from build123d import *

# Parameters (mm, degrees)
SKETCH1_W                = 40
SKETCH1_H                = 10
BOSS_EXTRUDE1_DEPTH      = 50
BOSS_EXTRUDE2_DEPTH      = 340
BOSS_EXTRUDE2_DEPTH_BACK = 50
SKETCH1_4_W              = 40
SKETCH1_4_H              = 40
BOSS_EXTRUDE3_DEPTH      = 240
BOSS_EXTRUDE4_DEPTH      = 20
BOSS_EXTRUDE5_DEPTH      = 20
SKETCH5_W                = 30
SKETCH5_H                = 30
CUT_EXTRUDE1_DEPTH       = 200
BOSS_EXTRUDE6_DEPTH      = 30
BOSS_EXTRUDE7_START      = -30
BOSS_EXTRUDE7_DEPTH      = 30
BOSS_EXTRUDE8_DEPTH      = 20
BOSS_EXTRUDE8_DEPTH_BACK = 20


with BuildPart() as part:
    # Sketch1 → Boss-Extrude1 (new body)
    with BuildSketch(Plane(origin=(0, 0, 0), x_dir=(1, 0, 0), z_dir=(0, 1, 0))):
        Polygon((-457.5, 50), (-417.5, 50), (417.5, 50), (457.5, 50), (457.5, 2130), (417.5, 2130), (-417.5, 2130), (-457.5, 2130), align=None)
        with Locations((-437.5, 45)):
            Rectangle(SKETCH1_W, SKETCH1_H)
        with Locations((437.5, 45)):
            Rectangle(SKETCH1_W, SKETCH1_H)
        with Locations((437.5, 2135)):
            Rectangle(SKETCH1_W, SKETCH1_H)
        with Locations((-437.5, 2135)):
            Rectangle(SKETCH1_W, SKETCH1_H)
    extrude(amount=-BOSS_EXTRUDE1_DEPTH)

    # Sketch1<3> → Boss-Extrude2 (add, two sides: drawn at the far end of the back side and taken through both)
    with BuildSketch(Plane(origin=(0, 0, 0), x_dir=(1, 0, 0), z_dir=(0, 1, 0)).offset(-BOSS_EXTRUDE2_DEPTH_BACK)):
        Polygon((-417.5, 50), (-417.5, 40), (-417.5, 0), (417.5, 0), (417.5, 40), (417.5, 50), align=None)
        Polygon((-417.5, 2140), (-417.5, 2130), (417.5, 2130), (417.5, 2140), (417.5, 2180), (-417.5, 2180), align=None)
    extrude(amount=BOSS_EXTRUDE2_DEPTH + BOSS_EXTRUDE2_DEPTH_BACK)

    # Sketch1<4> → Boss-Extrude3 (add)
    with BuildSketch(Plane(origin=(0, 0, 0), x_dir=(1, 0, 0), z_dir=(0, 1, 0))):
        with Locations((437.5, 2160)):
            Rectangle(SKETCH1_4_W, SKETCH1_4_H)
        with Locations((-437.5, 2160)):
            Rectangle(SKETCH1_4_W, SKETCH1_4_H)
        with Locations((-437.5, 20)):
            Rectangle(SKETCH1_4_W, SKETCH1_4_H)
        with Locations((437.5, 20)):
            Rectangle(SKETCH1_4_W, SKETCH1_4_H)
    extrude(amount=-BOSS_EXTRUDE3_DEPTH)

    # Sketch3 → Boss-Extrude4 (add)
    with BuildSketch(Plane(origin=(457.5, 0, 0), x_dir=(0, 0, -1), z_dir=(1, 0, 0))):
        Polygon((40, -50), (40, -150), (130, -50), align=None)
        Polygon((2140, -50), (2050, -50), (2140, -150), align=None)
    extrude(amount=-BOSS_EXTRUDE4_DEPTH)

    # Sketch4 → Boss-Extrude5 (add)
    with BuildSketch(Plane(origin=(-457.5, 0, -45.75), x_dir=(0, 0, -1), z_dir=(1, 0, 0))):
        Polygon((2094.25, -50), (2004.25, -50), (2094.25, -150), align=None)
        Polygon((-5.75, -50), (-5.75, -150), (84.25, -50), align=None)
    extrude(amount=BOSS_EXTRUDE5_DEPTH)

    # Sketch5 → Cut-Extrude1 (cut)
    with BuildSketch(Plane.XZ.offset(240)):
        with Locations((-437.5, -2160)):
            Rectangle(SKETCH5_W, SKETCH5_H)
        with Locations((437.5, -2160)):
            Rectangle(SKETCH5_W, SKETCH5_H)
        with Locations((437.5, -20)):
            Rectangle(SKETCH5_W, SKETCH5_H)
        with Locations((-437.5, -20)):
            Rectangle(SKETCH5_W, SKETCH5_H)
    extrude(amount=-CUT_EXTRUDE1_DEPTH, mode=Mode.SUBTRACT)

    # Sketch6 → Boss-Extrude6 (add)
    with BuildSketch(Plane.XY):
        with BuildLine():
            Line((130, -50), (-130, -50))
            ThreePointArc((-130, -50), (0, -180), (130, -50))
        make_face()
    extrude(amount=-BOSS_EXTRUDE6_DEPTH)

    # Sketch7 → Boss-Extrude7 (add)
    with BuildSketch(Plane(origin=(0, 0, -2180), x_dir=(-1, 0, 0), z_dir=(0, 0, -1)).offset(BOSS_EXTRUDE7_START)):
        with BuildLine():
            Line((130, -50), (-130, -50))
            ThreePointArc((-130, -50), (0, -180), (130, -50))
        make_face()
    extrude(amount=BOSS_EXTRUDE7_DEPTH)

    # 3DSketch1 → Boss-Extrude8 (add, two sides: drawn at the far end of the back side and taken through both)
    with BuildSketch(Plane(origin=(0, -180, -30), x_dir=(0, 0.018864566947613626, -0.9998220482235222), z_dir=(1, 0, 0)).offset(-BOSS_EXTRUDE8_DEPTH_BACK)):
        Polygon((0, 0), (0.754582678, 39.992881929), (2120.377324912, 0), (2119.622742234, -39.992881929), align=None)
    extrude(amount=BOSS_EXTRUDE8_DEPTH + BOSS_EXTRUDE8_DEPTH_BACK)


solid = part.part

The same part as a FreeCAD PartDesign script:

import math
import FreeCAD as App
import Part
import Sketcher
from FreeCAD import Vector


def add_polygon(sketch, points):
    """Adds a closed chain of lines whose ends are joined by coincident constraints."""
    first, n = sketch.GeometryCount, len(points)
    for a, b in zip(points, points[1:] + points[:1]):
        sketch.addGeometry(Part.LineSegment(App.Vector(*a, 0), App.Vector(*b, 0)), False)
    for i in range(n):
        sketch.addConstraint(Sketcher.Constraint("Coincident", first + i, 2, first + (i + 1) % n, 1))

doc = App.newDocument("Part")
params = doc.addObject("Spreadsheet::Sheet", "Params")
for row, (alias, value) in enumerate([
    ("sketch1_width", "835 mm"),
    ("sketch1_width2", "40 mm"),
    ("sketch1_height", "10 mm"),
    ("sketch1_height2", "2100 mm"),
    ("pad1_length", "50 mm"),
    ("sketch2_width", "835 mm"),
    ("sketch2_height", "50 mm"),
    ("pad2_length", "340 mm"),
    ("pad2_length2", "50 mm"),
    ("sketch3_width", "40 mm"),
    ("pad3_length", "240 mm"),
    ("sketch4_width", "100 mm"),
    ("sketch4_height", "90 mm"),
    ("pad4_length", "20 mm"),
    ("sketch5_width", "100 mm"),
    ("sketch5_height", "90 mm"),
    ("pad5_length", "20 mm"),
    ("sketch6_width", "30 mm"),
    ("pocket1_length", "200 mm"),
    ("sketch7_radius", "130 mm"),
    ("pad6_length", "30 mm"),
    ("sketch8_radius", "130 mm"),
    ("pad7_length", "30 mm"),
    ("sketch9_width", "40 mm"),
    ("sketch9_height", "2120 mm"),
    ("pad8_length", "20 mm"),
    ("pad8_length2", "20 mm"),
], start=1):
    params.set(f"A{row}", alias)
    params.set(f"B{row}", "=" + value)
    params.setAlias(f"B{row}", alias)

body = doc.addObject("PartDesign::Body", "Body")

# Sketch on XZ plane
sketch1 = doc.addObject("Sketcher::SketchObject", "Sketch")
body.addObject(sketch1)
sketch1.AttachmentSupport = (doc.XZ_Plane, [""])
sketch1.MapMode = "FlatFace"
add_polygon(sketch1, [(-418, -50), (418, -50), (418, -40), (458, -40), (458, -2140), (418, -2140), (418, -2130), (-418, -2130), (-418, -2140), (-458, -2140), (-458, -40), (-418, -40)])  # lines 0-11
sketch1.addConstraint(Sketcher.Constraint("Horizontal", 0))
sketch1.addConstraint(Sketcher.Constraint("Vertical", 1))
sketch1.addConstraint(Sketcher.Constraint("Horizontal", 2))
sketch1.addConstraint(Sketcher.Constraint("Vertical", 3))
sketch1.addConstraint(Sketcher.Constraint("Horizontal", 4))
sketch1.addConstraint(Sketcher.Constraint("Vertical", 5))
sketch1.addConstraint(Sketcher.Constraint("Horizontal", 6))
sketch1.addConstraint(Sketcher.Constraint("Vertical", 7))
sketch1.addConstraint(Sketcher.Constraint("Horizontal", 8))
sketch1.addConstraint(Sketcher.Constraint("Vertical", 9))
sketch1.addConstraint(Sketcher.Constraint("Horizontal", 10))
sketch1.addConstraint(Sketcher.Constraint("Vertical", 11))
sketch1.addConstraint(Sketcher.Constraint("Symmetric", 4, 2, 7, 2, -2))
sketch1.addConstraint(Sketcher.Constraint("Symmetric", 2, 2, 9, 2, -2))
sketch1.addConstraint(Sketcher.Constraint("Vertical", 1, 2, 4, 2))
sketch1.addConstraint(Sketcher.Constraint("Vertical", 7, 2, 10, 2))
sketch1.addConstraint(Sketcher.Constraint("Equal", 1, 5))
sketch1.addConstraint(Sketcher.Constraint("DistanceX", 0, 1, 0, 2, 835.0))
sketch1.addConstraint(Sketcher.Constraint("DistanceX", 2, 1, 2, 2, 40.0))
sketch1.addConstraint(Sketcher.Constraint("DistanceY", 1, 1, 1, 2, 10.0))
sketch1.addConstraint(Sketcher.Constraint("DistanceY", 3, 2, 3, 1, 2100.0))
sketch1.addConstraint(Sketcher.Constraint("DistanceY", 0, 2, -1, 1, 50.0))
sketch1.setExpression("Constraints[29]", "Params.sketch1_width")
sketch1.setExpression("Constraints[30]", "Params.sketch1_width2")
sketch1.setExpression("Constraints[31]", "Params.sketch1_height")
sketch1.setExpression("Constraints[32]", "Params.sketch1_height2")
pad1 = doc.addObject("PartDesign::Pad", "Pad")
body.addObject(pad1)
pad1.Profile = sketch1
pad1.setExpression("Length", "Params.pad1_length")

# Sketch on XZ plane
sketch2 = doc.addObject("Sketcher::SketchObject", "Sketch001")
body.addObject(sketch2)
sketch2.AttachmentSupport = (doc.XZ_Plane, [""])
sketch2.MapMode = "FlatFace"
add_polygon(sketch2, [(-418, -50), (-418, 0), (418, 0), (418, -50)])  # lines 0-3
add_polygon(sketch2, [(-418, -2130), (418, -2130), (418, -2180), (-418, -2180)])  # lines 4-7
sketch2.addConstraint(Sketcher.Constraint("Vertical", 0))
sketch2.addConstraint(Sketcher.Constraint("Horizontal", 1))
sketch2.addConstraint(Sketcher.Constraint("Vertical", 2))
sketch2.addConstraint(Sketcher.Constraint("Horizontal", 3))
sketch2.addConstraint(Sketcher.Constraint("Horizontal", 4))
sketch2.addConstraint(Sketcher.Constraint("Vertical", 5))
sketch2.addConstraint(Sketcher.Constraint("Horizontal", 6))
sketch2.addConstraint(Sketcher.Constraint("Vertical", 7))
sketch2.addConstraint(Sketcher.Constraint("Symmetric", 0, 2, 1, 2, -1, 1))
sketch2.addConstraint(Sketcher.Constraint("Vertical", 2, 2, 4, 2))
sketch2.addConstraint(Sketcher.Constraint("Vertical", 3, 2, 6, 2))
sketch2.addConstraint(Sketcher.Constraint("Equal", 2, 5))
sketch2.addConstraint(Sketcher.Constraint("DistanceX", 1, 1, 1, 2, 835.0))
sketch2.addConstraint(Sketcher.Constraint("DistanceY", 0, 1, 0, 2, 50.0))
sketch2.addConstraint(Sketcher.Constraint("DistanceY", 4, 2, -1, 1, 2130.0))
sketch2.setExpression("Constraints[20]", "Params.sketch2_width")
sketch2.setExpression("Constraints[21]", "Params.sketch2_height")
pad2 = doc.addObject("PartDesign::Pad", "Pad001")
body.addObject(pad2)
pad2.Profile = sketch2
pad2.Type = "TwoLengths"
pad2.setExpression("Length", "Params.pad2_length")
pad2.setExpression("Length2", "Params.pad2_length2")
pad2.Reversed = True

# Sketch on XZ plane
sketch3 = doc.addObject("Sketcher::SketchObject", "Sketch002")
body.addObject(sketch3)
sketch3.AttachmentSupport = (doc.XZ_Plane, [""])
sketch3.MapMode = "FlatFace"
add_polygon(sketch3, [(418, -2180), (418, -2140), (458, -2140), (458, -2180)])  # lines 0-3
add_polygon(sketch3, [(-458, -2180), (-458, -2140), (-418, -2140), (-418, -2180)])  # lines 4-7
add_polygon(sketch3, [(-458, -40), (-458, 0), (-418, 0), (-418, -40)])  # lines 8-11
add_polygon(sketch3, [(418, -40), (418, 0), (458, 0), (458, -40)])  # lines 12-15
sketch3.addConstraint(Sketcher.Constraint("Vertical", 0))
sketch3.addConstraint(Sketcher.Constraint("Horizontal", 1))
sketch3.addConstraint(Sketcher.Constraint("Vertical", 2))
sketch3.addConstraint(Sketcher.Constraint("Horizontal", 3))
sketch3.addConstraint(Sketcher.Constraint("Vertical", 4))
sketch3.addConstraint(Sketcher.Constraint("Horizontal", 5))
sketch3.addConstraint(Sketcher.Constraint("Vertical", 6))
sketch3.addConstraint(Sketcher.Constraint("Horizontal", 7))
sketch3.addConstraint(Sketcher.Constraint("Vertical", 8))
sketch3.addConstraint(Sketcher.Constraint("Horizontal", 9))
sketch3.addConstraint(Sketcher.Constraint("Vertical", 10))
sketch3.addConstraint(Sketcher.Constraint("Horizontal", 11))
sketch3.addConstraint(Sketcher.Constraint("Vertical", 12))
sketch3.addConstraint(Sketcher.Constraint("Horizontal", 13))
sketch3.addConstraint(Sketcher.Constraint("Vertical", 14))
sketch3.addConstraint(Sketcher.Constraint("Horizontal", 15))
sketch3.addConstraint(Sketcher.Constraint("Symmetric", 9, 2, 12, 2, -1, 1))
sketch3.addConstraint(Sketcher.Constraint("Symmetric", 1, 2, 4, 2, -2))
sketch3.addConstraint(Sketcher.Constraint("Symmetric", 3, 2, 6, 2, -2))
sketch3.addConstraint(Sketcher.Constraint("Symmetric", 8, 2, 13, 2, -2))
sketch3.addConstraint(Sketcher.Constraint("Horizontal", 11, 2, 14, 2))
sketch3.addConstraint(Sketcher.Constraint("Vertical", 7, 2, 8, 2))
sketch3.addConstraint(Sketcher.Constraint("Vertical", 6, 2, 9, 2))
sketch3.addConstraint(Sketcher.Constraint("Equal", 15, 0))
sketch3.addConstraint(Sketcher.Constraint("Equal", 6, 8))
sketch3.addConstraint(Sketcher.Constraint("DistanceX", 1, 1, 1, 2, 40.0))
sketch3.addConstraint(Sketcher.Constraint("DistanceY", 0, 2, -1, 1, 2140.0))
sketch3.addConstraint(Sketcher.Constraint("DistanceX", 4, 2, 0, 2, 875.0))
sketch3.setExpression("Constraints[41]", "Params.sketch3_width")
pad3 = doc.addObject("PartDesign::Pad", "Pad002")
body.addObject(pad3)
pad3.Profile = sketch3
pad3.setExpression("Length", "Params.pad3_length")

# Sketch on YZ plane
sketch4 = doc.addObject("Sketcher::SketchObject", "Sketch003")
body.addObject(sketch4)
sketch4.AttachmentSupport = (doc.YZ_Plane, [""])
sketch4.MapMode = "FlatFace"
sketch4.AttachmentOffset = App.Placement(Vector(0, 0, 457.5), App.Rotation())
add_polygon(sketch4, [(-50, -40), (-150, -40), (-50, -130)])  # lines 0-2
add_polygon(sketch4, [(-50, -2140), (-50, -2050), (-150, -2140)])  # lines 3-5
sketch4.addConstraint(Sketcher.Constraint("Horizontal", 0))
sketch4.addConstraint(Sketcher.Constraint("Vertical", 2))
sketch4.addConstraint(Sketcher.Constraint("Vertical", 3))
sketch4.addConstraint(Sketcher.Constraint("Horizontal", 5))
sketch4.addConstraint(Sketcher.Constraint("Vertical", 2, 2, 3, 2))
sketch4.addConstraint(Sketcher.Constraint("Vertical", 0, 2, 4, 2))
sketch4.addConstraint(Sketcher.Constraint("Equal", 2, 3))
sketch4.addConstraint(Sketcher.Constraint("DistanceX", 0, 2, 0, 1, 100.0))
sketch4.addConstraint(Sketcher.Constraint("DistanceY", 2, 1, 2, 2, 90.0))
sketch4.addConstraint(Sketcher.Constraint("DistanceX", 0, 2, -1, 1, 150.0))
sketch4.addConstraint(Sketcher.Constraint("DistanceY", 0, 2, -1, 1, 40.0))
sketch4.addConstraint(Sketcher.Constraint("DistanceY", 3, 2, -1, 1, 2050.0))
sketch4.setExpression("Constraints[13]", "Params.sketch4_width")
sketch4.setExpression("Constraints[14]", "Params.sketch4_height")
pad4 = doc.addObject("PartDesign::Pad", "Pad003")
body.addObject(pad4)
pad4.Profile = sketch4
pad4.setExpression("Length", "Params.pad4_length")
pad4.Reversed = True

# Sketch on YZ plane
sketch5 = doc.addObject("Sketcher::SketchObject", "Sketch004")
body.addObject(sketch5)
sketch5.AttachmentSupport = (doc.YZ_Plane, [""])
sketch5.MapMode = "FlatFace"
sketch5.AttachmentOffset = App.Placement(Vector(0, 0, -457.5), App.Rotation())
add_polygon(sketch5, [(-50, -2140), (-50, -2050), (-150, -2140)])  # lines 0-2
add_polygon(sketch5, [(-50, -40), (-150, -40), (-50, -130)])  # lines 3-5
sketch5.addConstraint(Sketcher.Constraint("Vertical", 0))
sketch5.addConstraint(Sketcher.Constraint("Horizontal", 2))
sketch5.addConstraint(Sketcher.Constraint("Horizontal", 3))
sketch5.addConstraint(Sketcher.Constraint("Vertical", 5))
sketch5.addConstraint(Sketcher.Constraint("Vertical", 1, 2, 3, 2))
sketch5.addConstraint(Sketcher.Constraint("Vertical", 2, 2, 4, 2))
sketch5.addConstraint(Sketcher.Constraint("Equal", 0, 5))
sketch5.addConstraint(Sketcher.Constraint("DistanceX", 2, 1, 2, 2, 100.0))
sketch5.addConstraint(Sketcher.Constraint("DistanceY", 0, 1, 0, 2, 90.0))
sketch5.addConstraint(Sketcher.Constraint("DistanceX", 0, 2, -1, 1, 50.0))
sketch5.addConstraint(Sketcher.Constraint("DistanceY", 0, 2, -1, 1, 2050.0))
sketch5.addConstraint(Sketcher.Constraint("DistanceY", 3, 2, -1, 1, 40.0))
sketch5.setExpression("Constraints[13]", "Params.sketch5_width")
sketch5.setExpression("Constraints[14]", "Params.sketch5_height")
pad5 = doc.addObject("PartDesign::Pad", "Pad004")
body.addObject(pad5)
pad5.Profile = sketch5
pad5.setExpression("Length", "Params.pad5_length")

# Sketch on XZ plane
sketch6 = doc.addObject("Sketcher::SketchObject", "Sketch005")
body.addObject(sketch6)
sketch6.AttachmentSupport = (doc.XZ_Plane, [""])
sketch6.MapMode = "FlatFace"
sketch6.AttachmentOffset = App.Placement(Vector(0, 0, 240), App.Rotation())
add_polygon(sketch6, [(-452, -2145), (-452, -2175), (-422, -2175), (-422, -2145)])  # lines 0-3
add_polygon(sketch6, [(422, -2145), (422, -2175), (452, -2175), (452, -2145)])  # lines 4-7
add_polygon(sketch6, [(422, -5), (422, -35), (452, -35), (452, -5)])  # lines 8-11
add_polygon(sketch6, [(-452, -5), (-452, -35), (-422, -35), (-422, -5)])  # lines 12-15
sketch6.addConstraint(Sketcher.Constraint("Vertical", 0))
sketch6.addConstraint(Sketcher.Constraint("Horizontal", 1))
sketch6.addConstraint(Sketcher.Constraint("Vertical", 2))
sketch6.addConstraint(Sketcher.Constraint("Horizontal", 3))
sketch6.addConstraint(Sketcher.Constraint("Vertical", 4))
sketch6.addConstraint(Sketcher.Constraint("Horizontal", 5))
sketch6.addConstraint(Sketcher.Constraint("Vertical", 6))
sketch6.addConstraint(Sketcher.Constraint("Horizontal", 7))
sketch6.addConstraint(Sketcher.Constraint("Vertical", 8))
sketch6.addConstraint(Sketcher.Constraint("Horizontal", 9))
sketch6.addConstraint(Sketcher.Constraint("Vertical", 10))
sketch6.addConstraint(Sketcher.Constraint("Horizontal", 11))
sketch6.addConstraint(Sketcher.Constraint("Vertical", 12))
sketch6.addConstraint(Sketcher.Constraint("Horizontal", 13))
sketch6.addConstraint(Sketcher.Constraint("Vertical", 14))
sketch6.addConstraint(Sketcher.Constraint("Horizontal", 15))
sketch6.addConstraint(Sketcher.Constraint("Symmetric", 1, 2, 4, 2, -2))
sketch6.addConstraint(Sketcher.Constraint("Symmetric", 3, 2, 6, 2, -2))
sketch6.addConstraint(Sketcher.Constraint("Symmetric", 9, 2, 12, 2, -2))
sketch6.addConstraint(Sketcher.Constraint("Symmetric", 11, 2, 14, 2, -2))
sketch6.addConstraint(Sketcher.Constraint("Vertical", 7, 2, 8, 2))
sketch6.addConstraint(Sketcher.Constraint("Vertical", 6, 2, 9, 2))
sketch6.addConstraint(Sketcher.Constraint("Equal", 15, 0))
sketch6.addConstraint(Sketcher.Constraint("Equal", 6, 8))
sketch6.addConstraint(Sketcher.Constraint("DistanceX", 1, 1, 1, 2, 30.0))
sketch6.addConstraint(Sketcher.Constraint("DistanceY", 0, 2, -1, 1, 2175.0))
sketch6.addConstraint(Sketcher.Constraint("DistanceY", 8, 2, -1, 1, 35.0))
sketch6.addConstraint(Sketcher.Constraint("DistanceX", 1, 2, 4, 2, 845.0))
sketch6.setExpression("Constraints[40]", "Params.sketch6_width")
pocket1 = doc.addObject("PartDesign::Pocket", "Pocket")
body.addObject(pocket1)
pocket1.Profile = sketch6
pocket1.setExpression("Length", "Params.pocket1_length")

# Sketch on XY plane
sketch7 = doc.addObject("Sketcher::SketchObject", "Sketch006")
body.addObject(sketch7)
sketch7.AttachmentSupport = (doc.XY_Plane, [""])
sketch7.MapMode = "FlatFace"
sketch7.addGeometry(Part.LineSegment(Vector(130, -50, 0), Vector(-130, -50, 0)), False)
sketch7.addGeometry(Part.ArcOfCircle(Part.Circle(Vector(0, -50, 0), Vector(0, 0, 1), 130), math.radians(180), math.radians(360)), False)
sketch7.addConstraint(Sketcher.Constraint("Coincident", 0, 1, 1, 2))
sketch7.addConstraint(Sketcher.Constraint("Coincident", 1, 1, 0, 2))
sketch7.addConstraint(Sketcher.Constraint("Horizontal", 0))
sketch7.addConstraint(Sketcher.Constraint("PointOnObject", 1, 3, -2))
sketch7.addConstraint(Sketcher.Constraint("Horizontal", 1, 3, 0, 1))
sketch7.addConstraint(Sketcher.Constraint("Radius", 1, 130.0))
sketch7.addConstraint(Sketcher.Constraint("DistanceY", 1, 3, -1, 1, 50.0))
sketch7.setExpression("Constraints[5]", "Params.sketch7_radius")
pad6 = doc.addObject("PartDesign::Pad", "Pad005")
body.addObject(pad6)
pad6.Profile = sketch7
pad6.setExpression("Length", "Params.pad6_length")
pad6.Reversed = True

# Sketch on XY plane
sketch8 = doc.addObject("Sketcher::SketchObject", "Sketch007")
body.addObject(sketch8)
sketch8.AttachmentSupport = (doc.XY_Plane, [""])
sketch8.MapMode = "FlatFace"
sketch8.AttachmentOffset = App.Placement(Vector(0, 0, -2150), App.Rotation())
sketch8.addGeometry(Part.LineSegment(Vector(-130, -50, 0), Vector(130, -50, 0)), False)
sketch8.addGeometry(Part.ArcOfCircle(Part.Circle(Vector(0, -50, 0), Vector(0, 0, 1), 130), math.radians(180), math.radians(360)), False)
sketch8.addConstraint(Sketcher.Constraint("Coincident", 0, 1, 1, 1))
sketch8.addConstraint(Sketcher.Constraint("Coincident", 1, 2, 0, 2))
sketch8.addConstraint(Sketcher.Constraint("Horizontal", 0))
sketch8.addConstraint(Sketcher.Constraint("PointOnObject", 1, 3, -2))
sketch8.addConstraint(Sketcher.Constraint("Horizontal", 1, 3, 0, 1))
sketch8.addConstraint(Sketcher.Constraint("Radius", 1, 130.0))
sketch8.addConstraint(Sketcher.Constraint("DistanceY", 1, 3, -1, 1, 50.0))
sketch8.setExpression("Constraints[5]", "Params.sketch8_radius")
pad7 = doc.addObject("PartDesign::Pad", "Pad006")
body.addObject(pad7)
pad7.Profile = sketch8
pad7.setExpression("Length", "Params.pad7_length")
pad7.Reversed = True

# Sketch on YZ plane
sketch9 = doc.addObject("Sketcher::SketchObject", "Sketch008")
body.addObject(sketch9)
sketch9.AttachmentSupport = (doc.YZ_Plane, [""])
sketch9.MapMode = "FlatFace"
add_polygon(sketch9, [(-140, -30), (-180, -30), (-180, -2150), (-140, -2150)])  # lines 0-3
sketch9.addConstraint(Sketcher.Constraint("Horizontal", 0))
sketch9.addConstraint(Sketcher.Constraint("Vertical", 1))
sketch9.addConstraint(Sketcher.Constraint("Horizontal", 2))
sketch9.addConstraint(Sketcher.Constraint("Vertical", 3))
sketch9.addConstraint(Sketcher.Constraint("DistanceX", 0, 2, 0, 1, 40.0))
sketch9.addConstraint(Sketcher.Constraint("DistanceY", 1, 2, 1, 1, 2120.0))
sketch9.addConstraint(Sketcher.Constraint("DistanceX", 0, 2, -1, 1, 180.0))
sketch9.addConstraint(Sketcher.Constraint("DistanceY", 0, 2, -1, 1, 30.0))
sketch9.setExpression("Constraints[8]", "Params.sketch9_width")
sketch9.setExpression("Constraints[9]", "Params.sketch9_height")
pad8 = doc.addObject("PartDesign::Pad", "Pad007")
body.addObject(pad8)
pad8.Profile = sketch9
pad8.Type = "TwoLengths"
pad8.setExpression("Length", "Params.pad8_length")
pad8.setExpression("Length2", "Params.pad8_length2")

doc.recompute()
